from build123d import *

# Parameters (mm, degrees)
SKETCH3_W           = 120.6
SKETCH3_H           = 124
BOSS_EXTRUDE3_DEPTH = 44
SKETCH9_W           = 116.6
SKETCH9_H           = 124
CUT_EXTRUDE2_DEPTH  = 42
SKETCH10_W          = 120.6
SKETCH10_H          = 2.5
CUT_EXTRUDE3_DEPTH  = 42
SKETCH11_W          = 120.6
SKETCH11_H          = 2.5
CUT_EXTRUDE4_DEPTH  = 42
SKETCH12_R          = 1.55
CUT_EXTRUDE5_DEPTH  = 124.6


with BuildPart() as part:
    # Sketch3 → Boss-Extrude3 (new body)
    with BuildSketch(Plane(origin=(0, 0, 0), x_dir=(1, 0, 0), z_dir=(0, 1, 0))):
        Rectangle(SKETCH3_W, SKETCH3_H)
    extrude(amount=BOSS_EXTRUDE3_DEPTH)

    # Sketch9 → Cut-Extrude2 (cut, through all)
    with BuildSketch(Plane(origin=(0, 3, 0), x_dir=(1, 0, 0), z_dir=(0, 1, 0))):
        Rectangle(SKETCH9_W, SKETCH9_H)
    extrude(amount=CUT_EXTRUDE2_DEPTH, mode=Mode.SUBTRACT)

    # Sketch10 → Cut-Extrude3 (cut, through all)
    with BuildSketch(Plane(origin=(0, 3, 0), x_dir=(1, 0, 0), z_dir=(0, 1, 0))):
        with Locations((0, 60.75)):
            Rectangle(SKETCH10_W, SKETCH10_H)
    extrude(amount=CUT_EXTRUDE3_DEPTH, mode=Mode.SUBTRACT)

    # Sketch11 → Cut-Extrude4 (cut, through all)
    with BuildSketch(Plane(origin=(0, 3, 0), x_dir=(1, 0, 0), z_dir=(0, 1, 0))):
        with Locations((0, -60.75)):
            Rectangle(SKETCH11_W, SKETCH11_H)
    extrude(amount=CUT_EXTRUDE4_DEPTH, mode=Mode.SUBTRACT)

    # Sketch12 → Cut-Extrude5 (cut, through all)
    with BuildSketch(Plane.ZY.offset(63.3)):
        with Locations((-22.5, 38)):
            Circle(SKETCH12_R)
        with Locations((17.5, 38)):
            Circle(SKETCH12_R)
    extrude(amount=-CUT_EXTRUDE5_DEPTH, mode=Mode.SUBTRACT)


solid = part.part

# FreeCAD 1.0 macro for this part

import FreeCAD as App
import Part
import Sketcher
Q = App.Units.Quantity


def add_polygon(sketch, points):
    """Adds a closed chain of lines whose ends are joined by coincident constraints."""
    first, n = sketch.GeometryCount, len(points)
    for a, b in zip(points, points[1:] + points[:1]):
        sketch.addGeometry(Part.LineSegment(App.Vector(*a, 0), App.Vector(*b, 0)), False)
    for i in range(n):
        sketch.addConstraint(Sketcher.Constraint("Coincident", first + i, 2, first + (i + 1) % n, 1))

doc = App.newDocument("Part")
body = doc.addObject("PartDesign::Body", "Body")

# Sketch on XZ plane
sketch1 = body.newObject("Sketcher::SketchObject", "Sketch")
sketch1.AttachmentSupport = (doc.getObject("XZ_Plane"), [""])
sketch1.MapMode = "FlatFace"
add_polygon(sketch1, [(-60, -62), (-60, 62), (60, 62), (60, -62)])  # lines 0-3
sketch1.addConstraint([
    Sketcher.Constraint("Vertical", 0),
    Sketcher.Constraint("Horizontal", 1),
    Sketcher.Constraint("Vertical", 2),
    Sketcher.Constraint("Horizontal", 3),
    Sketcher.Constraint("Symmetric", 0, 2, 2, 2, -1, 1),
    Sketcher.Constraint("DistanceY", 0, 1, 0, 2, Q("124 mm")),
    Sketcher.Constraint("DistanceX", 1, 1, 1, 2, Q("120.6 mm")),
])
pad1 = body.newObject("PartDesign::Pad", "Pad")
pad1.Profile = sketch1
pad1.Length = 44
pad1.Reversed = True

# Sketch on XZ plane
sketch2 = body.newObject("Sketcher::SketchObject", "Sketch001")
sketch2.AttachmentSupport = (doc.getObject("XZ_Plane"), [""])
sketch2.MapMode = "FlatFace"
sketch2.AttachmentOffset = App.Placement(App.Vector(0, 0, -3), App.Rotation())
add_polygon(sketch2, [(-58, -62), (-58, 62), (58, 62), (58, -62)])  # lines 0-3
sketch2.addConstraint([
    Sketcher.Constraint("Vertical", 0),
    Sketcher.Constraint("Horizontal", 1),
    Sketcher.Constraint("Vertical", 2),
    Sketcher.Constraint("Horizontal", 3),
    Sketcher.Constraint("Symmetric", 0, 2, 2, 2, -1, 1),
    Sketcher.Constraint("DistanceY", 0, 1, 0, 2, Q("124 mm")),
    Sketcher.Constraint("DistanceX", 1, 1, 1, 2, Q("116.6 mm")),
])
pocket1 = body.newObject("PartDesign::Pocket", "Pocket")
pocket1.Profile = sketch2
pocket1.Type = "ThroughAll"

# Sketch on XZ plane
sketch3 = body.newObject("Sketcher::SketchObject", "Sketch002")
sketch3.AttachmentSupport = (doc.getObject("XZ_Plane"), [""])
sketch3.MapMode = "FlatFace"
sketch3.AttachmentOffset = App.Placement(App.Vector(0, 0, -3), App.Rotation())
add_polygon(sketch3, [(-60.3, -62), (-60.3, -59.5), (60.3, -59.5), (60.3, -62)])  # lines 0-3
sketch3.addConstraint([
    Sketcher.Constraint("Vertical", 0),
    Sketcher.Constraint("Horizontal", 1),
    Sketcher.Constraint("Vertical", 2),
    Sketcher.Constraint("Horizontal", 3),
    Sketcher.Constraint("DistanceX", 1, 1, 1, 2, Q("120.6 mm")),
    Sketcher.Constraint("DistanceY", 0, 1, 0, 2, Q("2.5 mm")),
    Sketcher.Constraint("DistanceY", 2, 2, -1, 1, Q("62 mm")),
    Sketcher.Constraint("DistanceX", 0, 2, -1, 1, Q("60.3 mm")),
])
pocket2 = body.newObject("PartDesign::Pocket", "Pocket001")
pocket2.Profile = sketch3
pocket2.Type = "ThroughAll"

# Sketch on XZ plane
sketch4 = body.newObject("Sketcher::SketchObject", "Sketch003")
sketch4.AttachmentSupport = (doc.getObject("XZ_Plane"), [""])
sketch4.MapMode = "FlatFace"
sketch4.AttachmentOffset = App.Placement(App.Vector(0, 0, -3), App.Rotation())
add_polygon(sketch4, [(-60.3, 59.5), (-60.3, 62), (60.3, 62), (60.3, 59.5)])  # lines 0-3
sketch4.addConstraint([
    Sketcher.Constraint("Vertical", 0),
    Sketcher.Constraint("Horizontal", 1),
    Sketcher.Constraint("Vertical", 2),
    Sketcher.Constraint("Horizontal", 3),
    Sketcher.Constraint("DistanceX", 1, 1, 1, 2, Q("120.6 mm")),
    Sketcher.Constraint("DistanceY", 0, 1, 0, 2, Q("2.5 mm")),
    Sketcher.Constraint("DistanceY", -1, 1, 0, 2, Q("62 mm")),
    Sketcher.Constraint("DistanceX", 0, 2, -1, 1, Q("60.3 mm")),
])
pocket3 = body.newObject("PartDesign::Pocket", "Pocket002")
pocket3.Profile = sketch4
pocket3.Type = "ThroughAll"

# Sketch on YZ plane
sketch5 = body.newObject("Sketcher::SketchObject", "Sketch004")
sketch5.AttachmentSupport = (doc.getObject("YZ_Plane"), [""])
sketch5.MapMode = "FlatFace"
sketch5.AttachmentOffset = App.Placement(App.Vector(0, 0, -63.3), App.Rotation())
sketch5.addGeometry([
    Part.Circle(App.Vector(38, -22.5, 0), App.Vector(0, 0, 1), 1.6),
    Part.Circle(App.Vector(38, 17.5, 0), App.Vector(0, 0, 1), 1.6),
], False)
sketch5.addConstraint([
    Sketcher.Constraint("Equal", 0, 1),
    Sketcher.Constraint("Vertical", 0, 3, 1, 3),
    Sketcher.Constraint("Diameter", 0, Q("3.1 mm")),
    Sketcher.Constraint("DistanceX", -1, 1, 0, 3, Q("38 mm")),
    Sketcher.Constraint("DistanceY", 0, 3, 1, 3, Q("40 mm")),
    Sketcher.Constraint("DistanceY", 0, 3, -1, 1, Q("22.5 mm")),
])
pocket4 = body.newObject("PartDesign::Pocket", "Pocket003")
pocket4.Profile = sketch5
pocket4.Type = "ThroughAll"
pocket4.Reversed = True

doc.recompute()
